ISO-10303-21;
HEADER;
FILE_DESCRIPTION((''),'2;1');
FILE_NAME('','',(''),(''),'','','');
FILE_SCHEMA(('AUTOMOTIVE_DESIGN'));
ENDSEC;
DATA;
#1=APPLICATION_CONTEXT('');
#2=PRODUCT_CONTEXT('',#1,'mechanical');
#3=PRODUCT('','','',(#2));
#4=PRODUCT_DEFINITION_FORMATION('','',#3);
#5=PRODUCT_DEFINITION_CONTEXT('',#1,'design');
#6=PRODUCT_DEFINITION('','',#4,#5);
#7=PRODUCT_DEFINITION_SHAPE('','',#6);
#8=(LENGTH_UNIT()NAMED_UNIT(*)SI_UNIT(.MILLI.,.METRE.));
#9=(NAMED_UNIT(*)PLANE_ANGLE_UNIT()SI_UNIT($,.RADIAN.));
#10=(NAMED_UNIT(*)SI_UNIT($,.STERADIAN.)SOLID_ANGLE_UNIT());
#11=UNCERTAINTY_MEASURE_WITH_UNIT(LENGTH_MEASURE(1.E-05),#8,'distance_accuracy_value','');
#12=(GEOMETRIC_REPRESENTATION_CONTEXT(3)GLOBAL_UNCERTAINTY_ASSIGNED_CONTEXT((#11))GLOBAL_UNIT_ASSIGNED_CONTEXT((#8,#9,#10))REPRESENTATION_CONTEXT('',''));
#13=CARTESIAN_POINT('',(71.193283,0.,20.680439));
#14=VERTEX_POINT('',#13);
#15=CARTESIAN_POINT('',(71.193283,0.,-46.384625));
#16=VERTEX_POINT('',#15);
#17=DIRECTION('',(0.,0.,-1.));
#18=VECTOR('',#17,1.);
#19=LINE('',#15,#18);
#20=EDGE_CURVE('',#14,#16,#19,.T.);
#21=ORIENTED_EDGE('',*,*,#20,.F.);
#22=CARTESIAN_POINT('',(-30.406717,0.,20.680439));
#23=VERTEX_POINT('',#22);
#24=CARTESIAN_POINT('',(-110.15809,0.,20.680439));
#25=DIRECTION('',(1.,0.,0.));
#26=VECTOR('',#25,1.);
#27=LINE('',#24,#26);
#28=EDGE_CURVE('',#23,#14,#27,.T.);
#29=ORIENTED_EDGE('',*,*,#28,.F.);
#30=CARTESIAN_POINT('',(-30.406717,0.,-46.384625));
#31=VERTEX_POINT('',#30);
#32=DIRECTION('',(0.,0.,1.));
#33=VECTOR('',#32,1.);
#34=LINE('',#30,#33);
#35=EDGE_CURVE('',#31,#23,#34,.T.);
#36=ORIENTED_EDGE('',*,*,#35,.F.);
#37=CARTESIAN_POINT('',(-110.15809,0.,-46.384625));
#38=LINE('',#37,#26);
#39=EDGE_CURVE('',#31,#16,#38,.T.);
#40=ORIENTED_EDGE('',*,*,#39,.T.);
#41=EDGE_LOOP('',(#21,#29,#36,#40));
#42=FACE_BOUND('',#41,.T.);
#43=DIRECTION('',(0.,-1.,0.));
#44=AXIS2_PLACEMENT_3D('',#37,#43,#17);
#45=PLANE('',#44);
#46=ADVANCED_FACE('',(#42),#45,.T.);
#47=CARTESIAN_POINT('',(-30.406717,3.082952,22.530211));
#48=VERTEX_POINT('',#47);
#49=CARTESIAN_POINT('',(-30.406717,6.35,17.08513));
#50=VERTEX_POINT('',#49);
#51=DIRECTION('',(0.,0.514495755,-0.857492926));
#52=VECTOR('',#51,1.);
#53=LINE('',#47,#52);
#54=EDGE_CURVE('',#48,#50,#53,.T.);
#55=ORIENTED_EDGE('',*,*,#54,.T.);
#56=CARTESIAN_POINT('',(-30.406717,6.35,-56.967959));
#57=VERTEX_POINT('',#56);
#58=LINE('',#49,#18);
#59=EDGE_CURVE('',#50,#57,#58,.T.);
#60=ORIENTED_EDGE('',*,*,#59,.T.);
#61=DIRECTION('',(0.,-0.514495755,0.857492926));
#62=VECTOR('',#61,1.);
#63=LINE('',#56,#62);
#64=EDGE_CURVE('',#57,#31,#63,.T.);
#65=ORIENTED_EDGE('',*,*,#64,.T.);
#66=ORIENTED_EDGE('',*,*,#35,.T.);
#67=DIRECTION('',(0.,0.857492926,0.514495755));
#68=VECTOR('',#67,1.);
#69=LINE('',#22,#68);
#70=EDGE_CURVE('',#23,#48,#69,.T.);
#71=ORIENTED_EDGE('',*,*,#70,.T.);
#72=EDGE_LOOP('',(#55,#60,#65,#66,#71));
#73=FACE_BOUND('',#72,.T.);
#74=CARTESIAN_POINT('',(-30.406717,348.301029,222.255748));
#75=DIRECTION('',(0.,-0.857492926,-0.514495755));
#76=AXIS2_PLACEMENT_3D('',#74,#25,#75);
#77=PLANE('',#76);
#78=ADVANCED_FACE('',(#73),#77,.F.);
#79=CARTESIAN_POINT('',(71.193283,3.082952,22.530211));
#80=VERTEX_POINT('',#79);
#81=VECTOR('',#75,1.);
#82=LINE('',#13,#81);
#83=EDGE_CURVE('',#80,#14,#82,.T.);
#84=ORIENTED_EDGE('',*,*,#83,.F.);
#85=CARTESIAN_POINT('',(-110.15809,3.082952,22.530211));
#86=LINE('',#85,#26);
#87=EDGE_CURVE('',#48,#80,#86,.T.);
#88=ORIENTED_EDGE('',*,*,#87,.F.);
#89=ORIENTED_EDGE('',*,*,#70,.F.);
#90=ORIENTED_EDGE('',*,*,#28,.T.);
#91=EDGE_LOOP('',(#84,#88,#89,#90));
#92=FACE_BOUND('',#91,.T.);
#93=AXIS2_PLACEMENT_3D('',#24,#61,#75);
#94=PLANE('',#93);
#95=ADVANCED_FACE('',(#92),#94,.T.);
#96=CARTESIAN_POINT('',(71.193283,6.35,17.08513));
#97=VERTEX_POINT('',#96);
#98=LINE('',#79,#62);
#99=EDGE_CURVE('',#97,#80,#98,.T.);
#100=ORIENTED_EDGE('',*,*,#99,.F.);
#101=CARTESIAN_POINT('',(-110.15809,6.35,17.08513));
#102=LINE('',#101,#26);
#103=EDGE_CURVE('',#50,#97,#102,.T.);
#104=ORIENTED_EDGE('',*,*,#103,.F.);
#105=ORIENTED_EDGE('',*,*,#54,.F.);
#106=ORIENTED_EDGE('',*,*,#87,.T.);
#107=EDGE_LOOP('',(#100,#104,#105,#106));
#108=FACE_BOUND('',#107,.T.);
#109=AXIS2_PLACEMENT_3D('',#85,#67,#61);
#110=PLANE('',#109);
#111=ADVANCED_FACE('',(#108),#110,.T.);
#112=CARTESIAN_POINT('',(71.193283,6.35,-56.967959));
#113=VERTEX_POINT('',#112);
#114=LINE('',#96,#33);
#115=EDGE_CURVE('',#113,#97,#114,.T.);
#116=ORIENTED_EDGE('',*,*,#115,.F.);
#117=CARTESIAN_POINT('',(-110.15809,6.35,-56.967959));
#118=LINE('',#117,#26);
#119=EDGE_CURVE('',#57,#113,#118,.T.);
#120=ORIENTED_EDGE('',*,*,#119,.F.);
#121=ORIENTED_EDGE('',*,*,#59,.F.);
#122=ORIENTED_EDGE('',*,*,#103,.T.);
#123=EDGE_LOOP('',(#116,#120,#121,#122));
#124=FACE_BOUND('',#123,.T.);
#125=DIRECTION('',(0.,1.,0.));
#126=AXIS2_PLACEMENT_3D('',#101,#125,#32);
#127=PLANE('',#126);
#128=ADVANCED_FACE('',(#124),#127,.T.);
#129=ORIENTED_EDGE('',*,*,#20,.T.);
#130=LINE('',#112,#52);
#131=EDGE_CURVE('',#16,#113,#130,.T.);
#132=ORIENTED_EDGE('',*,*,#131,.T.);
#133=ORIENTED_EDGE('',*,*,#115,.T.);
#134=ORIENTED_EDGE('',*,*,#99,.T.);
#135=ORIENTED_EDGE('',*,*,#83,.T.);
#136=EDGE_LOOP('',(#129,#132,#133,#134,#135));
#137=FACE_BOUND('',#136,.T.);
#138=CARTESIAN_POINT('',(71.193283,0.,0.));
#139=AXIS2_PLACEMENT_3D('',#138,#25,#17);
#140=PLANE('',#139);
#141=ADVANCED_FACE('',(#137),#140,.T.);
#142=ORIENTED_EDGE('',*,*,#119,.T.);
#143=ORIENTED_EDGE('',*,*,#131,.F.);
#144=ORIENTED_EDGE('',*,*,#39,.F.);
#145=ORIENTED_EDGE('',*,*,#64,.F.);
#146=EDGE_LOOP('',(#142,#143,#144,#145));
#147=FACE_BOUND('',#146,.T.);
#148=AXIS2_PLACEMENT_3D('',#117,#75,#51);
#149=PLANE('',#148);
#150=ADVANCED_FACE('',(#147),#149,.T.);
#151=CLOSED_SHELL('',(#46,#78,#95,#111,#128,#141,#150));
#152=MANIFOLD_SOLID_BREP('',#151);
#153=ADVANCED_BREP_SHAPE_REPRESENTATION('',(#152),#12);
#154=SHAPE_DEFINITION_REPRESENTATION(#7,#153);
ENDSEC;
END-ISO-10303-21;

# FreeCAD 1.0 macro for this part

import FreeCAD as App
import Part
import Sketcher

V = App.Vector
Q = App.Units.Quantity


def add_polygon(sketch, points):
    """Adds a closed chain of lines whose ends are joined by coincident constraints."""
    first, n = sketch.GeometryCount, len(points)
    for a, b in zip(points, points[1:] + points[:1]):
        sketch.addGeometry(Part.LineSegment(App.Vector(*a, 0), App.Vector(*b, 0)), False)
    for i in range(n):
        sketch.addConstraint(Sketcher.Constraint("Coincident", first + i, 2, first + (i + 1) % n, 1))

doc = App.newDocument("Part")
body = doc.addObject("PartDesign::Body", "Body")

# Sketch on YZ plane
sketch1 = doc.addObject("Sketcher::SketchObject", "Sketch")
body.addObject(sketch1)
sketch1.AttachmentSupport = (doc.YZ_Plane, [""])
sketch1.MapMode = "FlatFace"
sketch1.AttachmentOffset = App.Placement(V(0, 0, 71.193283), App.Rotation())
add_polygon(sketch1, [(0, -46.4), (6.3, -57), (6.3, 17.1), (3.1, 22.5), (0, 20.7)])  # lines 0-4
sketch1.addConstraint([
    Sketcher.Constraint("Vertical", 1),
    Sketcher.Constraint("Vertical", 4),
    Sketcher.Constraint("PointOnObject", 3, 2, -2),
    Sketcher.Constraint("Parallel", 0, 2),
    Sketcher.Constraint("Perpendicular", 2, 3),
    Sketcher.Constraint("Distance", 2, Q("0.25 in")),
    Sketcher.Constraint("DistanceX", -1, 1, 0, 2, Q("0.25 in")),
    Sketcher.Constraint("DistanceY", 1, 1, 1, 2, Q("74.053089 mm")),
    Sketcher.Constraint("Distance", 0, Q("12.342182 mm")),
    Sketcher.Constraint("DistanceY", 0, 2, -1, 1, Q("56.967959 mm")),
])
pad1 = doc.addObject("PartDesign::Pad", "Pad")
body.addObject(pad1)
pad1.Profile = sketch1
pad1.Length = Q("4 in")
pad1.Reversed = True

doc.recompute()
